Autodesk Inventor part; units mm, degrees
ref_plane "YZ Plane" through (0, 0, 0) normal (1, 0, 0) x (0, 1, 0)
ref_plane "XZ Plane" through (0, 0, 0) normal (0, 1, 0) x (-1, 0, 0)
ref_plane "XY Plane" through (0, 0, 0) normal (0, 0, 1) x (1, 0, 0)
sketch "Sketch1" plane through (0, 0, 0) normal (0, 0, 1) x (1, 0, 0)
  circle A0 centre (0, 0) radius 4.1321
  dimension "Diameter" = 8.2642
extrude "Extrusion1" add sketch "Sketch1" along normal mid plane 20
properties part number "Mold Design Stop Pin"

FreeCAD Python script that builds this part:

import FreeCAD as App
import Part
import Sketcher

doc = App.newDocument("Part")
body = doc.addObject("PartDesign::Body", "Body")

# Sketch on XY plane
sketch1 = body.newObject("Sketcher::SketchObject", "Sketch")
sketch1.AttachmentSupport = (doc.getObject("XY_Plane"), [""])
sketch1.MapMode = "FlatFace"
sketch1.addGeometry(Part.Circle(App.Vector(0, 0, 0), App.Vector(0, 0, 1), 4.1321), False)
sketch1.addConstraint(Sketcher.Constraint("Coincident", 0, 3, -1, 1))
sketch1.addConstraint(Sketcher.Constraint("Diameter", 0, 8.2642))
pad1 = body.newObject("PartDesign::Pad", "Pad")
pad1.Profile = sketch1
pad1.Length = 20
pad1.Midplane = True

doc.recompute()
